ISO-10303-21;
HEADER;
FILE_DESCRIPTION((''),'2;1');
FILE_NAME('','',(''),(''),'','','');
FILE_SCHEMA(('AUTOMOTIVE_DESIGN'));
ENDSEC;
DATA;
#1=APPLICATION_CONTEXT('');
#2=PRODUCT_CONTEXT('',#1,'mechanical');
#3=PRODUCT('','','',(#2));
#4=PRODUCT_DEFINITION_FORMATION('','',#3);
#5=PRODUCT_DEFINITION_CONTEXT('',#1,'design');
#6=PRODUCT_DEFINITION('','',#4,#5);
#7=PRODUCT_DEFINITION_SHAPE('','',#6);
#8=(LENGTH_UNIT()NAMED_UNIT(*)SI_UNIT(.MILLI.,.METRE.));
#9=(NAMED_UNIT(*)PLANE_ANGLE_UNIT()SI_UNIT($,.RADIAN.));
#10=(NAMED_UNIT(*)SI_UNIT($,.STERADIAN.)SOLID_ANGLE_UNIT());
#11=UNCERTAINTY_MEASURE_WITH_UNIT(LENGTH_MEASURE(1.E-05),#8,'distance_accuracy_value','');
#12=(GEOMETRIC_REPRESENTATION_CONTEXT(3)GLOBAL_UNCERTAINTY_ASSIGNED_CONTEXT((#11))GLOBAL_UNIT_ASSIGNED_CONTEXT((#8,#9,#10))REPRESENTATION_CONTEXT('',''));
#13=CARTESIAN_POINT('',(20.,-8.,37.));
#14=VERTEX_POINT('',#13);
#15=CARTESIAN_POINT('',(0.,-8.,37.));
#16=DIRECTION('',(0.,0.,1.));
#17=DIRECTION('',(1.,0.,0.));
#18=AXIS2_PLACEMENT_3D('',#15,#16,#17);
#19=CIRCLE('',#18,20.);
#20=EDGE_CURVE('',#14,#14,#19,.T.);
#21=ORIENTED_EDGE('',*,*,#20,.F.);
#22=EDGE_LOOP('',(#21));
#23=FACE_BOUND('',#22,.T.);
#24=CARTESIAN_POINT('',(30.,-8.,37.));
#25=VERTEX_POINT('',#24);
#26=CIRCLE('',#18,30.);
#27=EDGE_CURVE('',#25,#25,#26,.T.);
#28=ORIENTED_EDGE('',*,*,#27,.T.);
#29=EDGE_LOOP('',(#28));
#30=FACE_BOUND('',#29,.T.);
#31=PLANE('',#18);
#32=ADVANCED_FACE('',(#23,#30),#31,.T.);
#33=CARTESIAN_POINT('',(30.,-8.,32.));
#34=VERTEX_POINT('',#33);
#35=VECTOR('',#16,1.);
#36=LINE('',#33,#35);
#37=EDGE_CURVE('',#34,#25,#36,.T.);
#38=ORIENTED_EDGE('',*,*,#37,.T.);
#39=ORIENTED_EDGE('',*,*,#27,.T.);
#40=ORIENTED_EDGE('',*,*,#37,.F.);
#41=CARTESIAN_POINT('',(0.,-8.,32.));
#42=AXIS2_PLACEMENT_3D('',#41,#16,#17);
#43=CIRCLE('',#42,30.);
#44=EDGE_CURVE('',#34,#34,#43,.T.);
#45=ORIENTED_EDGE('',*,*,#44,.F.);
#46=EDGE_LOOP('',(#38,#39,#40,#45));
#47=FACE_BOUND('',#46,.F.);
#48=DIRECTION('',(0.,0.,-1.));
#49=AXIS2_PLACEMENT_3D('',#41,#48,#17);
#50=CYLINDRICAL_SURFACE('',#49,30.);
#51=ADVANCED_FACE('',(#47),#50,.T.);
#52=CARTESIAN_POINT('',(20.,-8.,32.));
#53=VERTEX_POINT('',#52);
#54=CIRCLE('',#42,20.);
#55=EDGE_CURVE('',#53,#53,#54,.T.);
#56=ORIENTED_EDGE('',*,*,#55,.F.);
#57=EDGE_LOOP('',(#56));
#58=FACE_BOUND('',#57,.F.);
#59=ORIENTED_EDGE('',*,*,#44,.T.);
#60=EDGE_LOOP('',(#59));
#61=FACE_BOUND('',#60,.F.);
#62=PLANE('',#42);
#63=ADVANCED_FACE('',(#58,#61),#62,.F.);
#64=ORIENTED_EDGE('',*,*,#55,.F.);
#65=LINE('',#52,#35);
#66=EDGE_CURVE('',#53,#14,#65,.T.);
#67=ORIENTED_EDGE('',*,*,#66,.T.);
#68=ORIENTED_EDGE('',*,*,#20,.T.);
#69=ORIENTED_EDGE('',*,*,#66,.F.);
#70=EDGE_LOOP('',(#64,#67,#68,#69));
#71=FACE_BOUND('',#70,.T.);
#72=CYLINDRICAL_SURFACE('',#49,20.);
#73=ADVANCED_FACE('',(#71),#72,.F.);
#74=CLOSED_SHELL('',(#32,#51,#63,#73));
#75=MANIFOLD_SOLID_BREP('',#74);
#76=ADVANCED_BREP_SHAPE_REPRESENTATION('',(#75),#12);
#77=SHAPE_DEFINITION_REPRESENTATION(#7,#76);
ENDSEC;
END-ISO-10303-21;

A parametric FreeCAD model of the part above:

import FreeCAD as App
import Part
import Sketcher

V = App.Vector
Q = App.Units.Quantity

doc = App.newDocument("Part")
params = doc.addObject("Spreadsheet::Sheet", "Params")
for row, (alias, value) in enumerate([
    ("sketch1_diameter", "40 mm"),
    ("pad1_length", "5 mm"),
    ("sketch2_diameter", "60 mm"),
    ("pad2_length", "5 mm"),
], start=1):
    params.set(f"A{row}", alias)
    params.set(f"B{row}", "=" + value)
    params.setAlias(f"B{row}", alias)

body = doc.addObject("PartDesign::Body", "Body")

# Sketch on XY plane
sketch1 = body.newObject("Sketcher::SketchObject", "Sketch")
sketch1.AttachmentSupport = (doc.getObject("XY_Plane"), [""])
sketch1.MapMode = "FlatFace"
sketch1.AttachmentOffset = App.Placement(V(0, 0, 28), App.Rotation())
sketch1.addGeometry(Part.Circle(V(0, -8, 0), V(0, 0, 1), 20), False)
sketch1.addConstraint([
    Sketcher.Constraint("PointOnObject", 0, 3, -2),
    Sketcher.Constraint("Diameter", 0, Q("40 mm")),
    Sketcher.Constraint("DistanceY", 0, 3, -1, 1, Q("8 mm")),
])
sketch1.setExpression("Constraints[1]", "Params.sketch1_diameter")
pad1 = body.newObject("PartDesign::Pad", "Pad")
pad1.Profile = sketch1
pad1.setExpression("Length", "Params.pad1_length")
body2 = doc.addObject("PartDesign::Body", "Body001")

# Sketch on XY plane
sketch2 = body2.newObject("Sketcher::SketchObject", "Sketch001")
sketch2.AttachmentSupport = (doc.getObject("XY_Plane001"), [""])
sketch2.MapMode = "FlatFace"
sketch2.AttachmentOffset = App.Placement(V(0, 0, 28), App.Rotation())
sketch2.addGeometry(Part.Circle(V(0, -8, 0), V(0, 0, 1), 30), False)
sketch2.addConstraint([
    Sketcher.Constraint("PointOnObject", 0, 3, -2),
    Sketcher.Constraint("Diameter", 0, Q("60 mm")),
    Sketcher.Constraint("DistanceY", 0, 3, -1, 1, Q("8 mm")),
])
sketch2.setExpression("Constraints[1]", "Params.sketch2_diameter")
pad2 = body2.newObject("PartDesign::Pad", "Pad001")
pad2.Profile = sketch2
pad2.setExpression("Length", "Params.pad2_length")
doc.recompute()

boolean = body2.newObject("PartDesign::Boolean", "Boolean")
boolean.Type = "Cut"
boolean.addObjects([body])
body3 = doc.addObject("PartDesign::Body", "Body002")
doc.recompute()

body2.Placement = App.Placement(V(0, 0, 4), App.Rotation(V(0, 0, 1), 0))
boolean2 = body3.newObject("PartDesign::Boolean", "Boolean001")
boolean2.Type = "Fuse"
boolean2.addObjects([body2])

doc.recompute()
